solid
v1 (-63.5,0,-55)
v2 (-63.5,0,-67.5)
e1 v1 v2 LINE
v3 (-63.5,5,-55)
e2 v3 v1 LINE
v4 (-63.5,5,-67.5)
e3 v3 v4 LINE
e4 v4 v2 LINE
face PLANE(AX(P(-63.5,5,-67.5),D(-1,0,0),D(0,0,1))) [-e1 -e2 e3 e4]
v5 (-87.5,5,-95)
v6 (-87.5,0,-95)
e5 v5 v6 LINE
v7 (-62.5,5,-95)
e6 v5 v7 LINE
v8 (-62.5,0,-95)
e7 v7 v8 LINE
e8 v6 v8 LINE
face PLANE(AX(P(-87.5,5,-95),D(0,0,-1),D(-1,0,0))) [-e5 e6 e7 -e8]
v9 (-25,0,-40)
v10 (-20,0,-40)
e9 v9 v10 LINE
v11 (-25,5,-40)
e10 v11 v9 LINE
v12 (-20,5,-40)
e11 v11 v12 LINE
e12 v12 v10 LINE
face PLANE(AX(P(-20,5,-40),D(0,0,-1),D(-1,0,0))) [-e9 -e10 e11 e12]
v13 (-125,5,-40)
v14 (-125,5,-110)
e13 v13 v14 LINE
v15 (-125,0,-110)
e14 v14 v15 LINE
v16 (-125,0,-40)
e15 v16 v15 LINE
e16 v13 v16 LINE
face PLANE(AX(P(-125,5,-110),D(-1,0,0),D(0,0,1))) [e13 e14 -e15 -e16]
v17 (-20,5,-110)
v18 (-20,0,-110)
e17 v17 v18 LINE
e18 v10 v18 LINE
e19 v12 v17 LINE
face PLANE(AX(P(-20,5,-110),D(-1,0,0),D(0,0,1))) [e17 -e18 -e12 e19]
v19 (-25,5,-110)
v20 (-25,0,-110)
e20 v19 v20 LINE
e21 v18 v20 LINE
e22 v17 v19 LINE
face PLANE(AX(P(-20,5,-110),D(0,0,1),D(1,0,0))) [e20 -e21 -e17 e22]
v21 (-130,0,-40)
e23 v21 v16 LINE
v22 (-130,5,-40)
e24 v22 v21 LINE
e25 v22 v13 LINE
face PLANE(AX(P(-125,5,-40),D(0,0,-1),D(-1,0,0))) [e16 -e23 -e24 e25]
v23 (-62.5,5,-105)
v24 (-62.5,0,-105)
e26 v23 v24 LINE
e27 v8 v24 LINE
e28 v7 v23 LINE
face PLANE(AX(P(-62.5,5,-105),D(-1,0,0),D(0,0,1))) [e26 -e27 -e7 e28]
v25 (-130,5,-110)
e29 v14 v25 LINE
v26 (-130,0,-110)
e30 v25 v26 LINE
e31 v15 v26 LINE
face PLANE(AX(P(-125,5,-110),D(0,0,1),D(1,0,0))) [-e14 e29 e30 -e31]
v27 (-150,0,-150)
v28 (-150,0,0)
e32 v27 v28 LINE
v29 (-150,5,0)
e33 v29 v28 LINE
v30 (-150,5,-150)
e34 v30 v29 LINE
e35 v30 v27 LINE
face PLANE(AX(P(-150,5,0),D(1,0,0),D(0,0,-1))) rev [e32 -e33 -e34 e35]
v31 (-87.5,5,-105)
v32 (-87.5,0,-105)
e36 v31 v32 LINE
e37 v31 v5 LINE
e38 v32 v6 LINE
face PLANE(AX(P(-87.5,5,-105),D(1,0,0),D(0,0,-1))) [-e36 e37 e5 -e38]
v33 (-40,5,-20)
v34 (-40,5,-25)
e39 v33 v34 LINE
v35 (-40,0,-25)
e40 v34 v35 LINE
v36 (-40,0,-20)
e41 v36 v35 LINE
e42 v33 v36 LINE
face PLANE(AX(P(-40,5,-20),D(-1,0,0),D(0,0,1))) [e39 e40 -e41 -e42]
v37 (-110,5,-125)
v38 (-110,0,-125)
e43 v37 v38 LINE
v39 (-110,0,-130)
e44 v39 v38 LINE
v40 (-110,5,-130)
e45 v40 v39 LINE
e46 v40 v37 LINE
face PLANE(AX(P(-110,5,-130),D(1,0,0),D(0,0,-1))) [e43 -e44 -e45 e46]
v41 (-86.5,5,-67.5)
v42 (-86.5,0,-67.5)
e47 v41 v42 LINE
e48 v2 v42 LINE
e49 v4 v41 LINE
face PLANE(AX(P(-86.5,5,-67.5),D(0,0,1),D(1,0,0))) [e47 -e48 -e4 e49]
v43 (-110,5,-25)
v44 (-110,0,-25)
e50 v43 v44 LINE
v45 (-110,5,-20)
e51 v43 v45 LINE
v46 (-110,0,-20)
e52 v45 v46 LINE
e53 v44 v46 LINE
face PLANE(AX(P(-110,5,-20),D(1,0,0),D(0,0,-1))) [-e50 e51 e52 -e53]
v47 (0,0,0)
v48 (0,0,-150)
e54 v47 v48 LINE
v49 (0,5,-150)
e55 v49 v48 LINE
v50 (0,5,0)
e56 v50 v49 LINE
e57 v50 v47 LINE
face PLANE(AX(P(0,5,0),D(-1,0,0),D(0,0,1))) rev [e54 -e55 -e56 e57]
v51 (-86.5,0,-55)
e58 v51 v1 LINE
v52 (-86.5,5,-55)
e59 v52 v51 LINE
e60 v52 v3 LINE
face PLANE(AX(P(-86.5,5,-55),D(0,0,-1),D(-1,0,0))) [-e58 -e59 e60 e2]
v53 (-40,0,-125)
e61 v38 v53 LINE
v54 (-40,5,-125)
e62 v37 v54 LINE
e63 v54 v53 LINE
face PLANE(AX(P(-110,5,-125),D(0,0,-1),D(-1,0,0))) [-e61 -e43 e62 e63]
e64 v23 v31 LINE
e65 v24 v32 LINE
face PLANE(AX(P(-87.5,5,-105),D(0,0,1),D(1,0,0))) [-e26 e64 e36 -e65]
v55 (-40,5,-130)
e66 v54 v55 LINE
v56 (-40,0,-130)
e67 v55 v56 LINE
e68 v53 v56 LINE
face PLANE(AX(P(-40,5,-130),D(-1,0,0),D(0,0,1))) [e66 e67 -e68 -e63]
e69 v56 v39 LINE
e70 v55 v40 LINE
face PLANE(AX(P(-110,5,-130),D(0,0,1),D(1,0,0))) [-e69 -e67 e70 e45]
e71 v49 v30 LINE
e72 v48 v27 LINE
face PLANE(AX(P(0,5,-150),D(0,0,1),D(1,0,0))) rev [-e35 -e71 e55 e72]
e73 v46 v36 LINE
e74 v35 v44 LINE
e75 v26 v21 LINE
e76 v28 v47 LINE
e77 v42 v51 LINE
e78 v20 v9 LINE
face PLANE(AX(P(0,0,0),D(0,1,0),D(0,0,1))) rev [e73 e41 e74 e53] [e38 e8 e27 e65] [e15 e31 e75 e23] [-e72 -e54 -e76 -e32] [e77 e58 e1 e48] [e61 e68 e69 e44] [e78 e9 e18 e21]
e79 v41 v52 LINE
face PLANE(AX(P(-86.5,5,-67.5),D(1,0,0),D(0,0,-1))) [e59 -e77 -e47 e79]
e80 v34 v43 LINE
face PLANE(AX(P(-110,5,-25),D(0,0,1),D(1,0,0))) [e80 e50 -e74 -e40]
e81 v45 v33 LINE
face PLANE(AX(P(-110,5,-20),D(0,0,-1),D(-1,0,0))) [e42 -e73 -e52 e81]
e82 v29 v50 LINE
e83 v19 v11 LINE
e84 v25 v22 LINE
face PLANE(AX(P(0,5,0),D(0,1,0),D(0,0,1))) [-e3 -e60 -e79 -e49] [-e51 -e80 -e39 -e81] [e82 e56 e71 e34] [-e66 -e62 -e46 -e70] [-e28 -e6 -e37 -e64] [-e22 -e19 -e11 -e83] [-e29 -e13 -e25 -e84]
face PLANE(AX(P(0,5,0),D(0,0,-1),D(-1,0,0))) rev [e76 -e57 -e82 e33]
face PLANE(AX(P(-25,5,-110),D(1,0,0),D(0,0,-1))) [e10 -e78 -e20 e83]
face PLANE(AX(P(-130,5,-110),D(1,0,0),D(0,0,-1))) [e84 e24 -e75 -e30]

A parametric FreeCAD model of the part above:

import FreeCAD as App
import Part
import Sketcher

doc = App.newDocument("Part")
body = doc.addObject("PartDesign::Body", "Body")

sketch1 = body.newObject("Sketcher::SketchObject", "Sketch")
sketch1.AttachmentSupport = (doc.getObject("XZ_Plane"), [""])
sketch1.MapMode = "FlatFace"
sketch1.addGeometry([
    Part.LineSegment(App.Vector(-150, -150, 0), App.Vector(-150, 0, 0)),
    Part.LineSegment(App.Vector(-150, 0, 0), App.Vector(0, 0, 0)),
    Part.LineSegment(App.Vector(0, 0, 0), App.Vector(0, -150, 0)),
    Part.LineSegment(App.Vector(0, -150, 0), App.Vector(-150, -150, 0)),
    Part.LineSegment(App.Vector(-40, -20, 0), App.Vector(-110, -20, 0)),
    Part.LineSegment(App.Vector(-110, -20, 0), App.Vector(-110, -25, 0)),
    Part.LineSegment(App.Vector(-110, -25, 0), App.Vector(-40, -25, 0)),
    Part.LineSegment(App.Vector(-40, -25, 0), App.Vector(-40, -20, 0)),
    Part.LineSegment(App.Vector(-63.5, -55, 0), App.Vector(-86.5, -55, 0)),
    Part.LineSegment(App.Vector(-86.5, -55, 0), App.Vector(-86.5, -67.5, 0)),
    Part.LineSegment(App.Vector(-86.5, -67.5, 0), App.Vector(-63.5, -67.5, 0)),
    Part.LineSegment(App.Vector(-63.5, -67.5, 0), App.Vector(-63.5, -55, 0)),
    Part.LineSegment(App.Vector(-125, -40, 0), App.Vector(-130, -40, 0)),
    Part.LineSegment(App.Vector(-130, -40, 0), App.Vector(-130, -110, 0)),
    Part.LineSegment(App.Vector(-130, -110, 0), App.Vector(-125, -110, 0)),
    Part.LineSegment(App.Vector(-125, -110, 0), App.Vector(-125, -40, 0)),
    Part.LineSegment(App.Vector(-62.5, -95, 0), App.Vector(-87.5, -95, 0)),
    Part.LineSegment(App.Vector(-87.5, -95, 0), App.Vector(-87.5, -105, 0)),
    Part.LineSegment(App.Vector(-87.5, -105, 0), App.Vector(-62.5, -105, 0)),
    Part.LineSegment(App.Vector(-62.5, -105, 0), App.Vector(-62.5, -95, 0)),
    Part.LineSegment(App.Vector(-20, -40, 0), App.Vector(-25, -40, 0)),
    Part.LineSegment(App.Vector(-25, -40, 0), App.Vector(-25, -110, 0)),
    Part.LineSegment(App.Vector(-25, -110, 0), App.Vector(-20, -110, 0)),
    Part.LineSegment(App.Vector(-20, -110, 0), App.Vector(-20, -40, 0)),
    Part.LineSegment(App.Vector(-40, -125, 0), App.Vector(-110, -125, 0)),
    Part.LineSegment(App.Vector(-110, -125, 0), App.Vector(-110, -130, 0)),
    Part.LineSegment(App.Vector(-110, -130, 0), App.Vector(-40, -130, 0)),
    Part.LineSegment(App.Vector(-40, -130, 0), App.Vector(-40, -125, 0)),
], False)
sketch1.addConstraint([
    Sketcher.Constraint("Coincident", 0, 2, 1, 1),
    Sketcher.Constraint("Coincident", 1, 2, 2, 1),
    Sketcher.Constraint("Coincident", 2, 2, 3, 1),
    Sketcher.Constraint("Coincident", 3, 2, 0, 1),
    Sketcher.Constraint("Coincident", 4, 2, 5, 1),
    Sketcher.Constraint("Coincident", 5, 2, 6, 1),
    Sketcher.Constraint("Coincident", 6, 2, 7, 1),
    Sketcher.Constraint("Coincident", 7, 2, 4, 1),
    Sketcher.Constraint("Coincident", 8, 2, 9, 1),
    Sketcher.Constraint("Coincident", 9, 2, 10, 1),
    Sketcher.Constraint("Coincident", 10, 2, 11, 1),
    Sketcher.Constraint("Coincident", 11, 2, 8, 1),
    Sketcher.Constraint("Coincident", 12, 2, 13, 1),
    Sketcher.Constraint("Coincident", 13, 2, 14, 1),
    Sketcher.Constraint("Coincident", 14, 2, 15, 1),
    Sketcher.Constraint("Coincident", 15, 2, 12, 1),
    Sketcher.Constraint("Coincident", 16, 2, 17, 1),
    Sketcher.Constraint("Coincident", 17, 2, 18, 1),
    Sketcher.Constraint("Coincident", 18, 2, 19, 1),
    Sketcher.Constraint("Coincident", 19, 2, 16, 1),
    Sketcher.Constraint("Coincident", 20, 2, 21, 1),
    Sketcher.Constraint("Coincident", 21, 2, 22, 1),
    Sketcher.Constraint("Coincident", 22, 2, 23, 1),
    Sketcher.Constraint("Coincident", 23, 2, 20, 1),
    Sketcher.Constraint("Coincident", 24, 2, 25, 1),
    Sketcher.Constraint("Coincident", 25, 2, 26, 1),
    Sketcher.Constraint("Coincident", 26, 2, 27, 1),
    Sketcher.Constraint("Coincident", 27, 2, 24, 1),
    Sketcher.Constraint("Vertical", 0),
    Sketcher.Constraint("Horizontal", 1),
    Sketcher.Constraint("Vertical", 2),
    Sketcher.Constraint("Horizontal", 3),
    Sketcher.Constraint("Horizontal", 4),
    Sketcher.Constraint("Vertical", 5),
    Sketcher.Constraint("Horizontal", 6),
    Sketcher.Constraint("Vertical", 7),
    Sketcher.Constraint("Horizontal", 8),
    Sketcher.Constraint("Vertical", 9),
    Sketcher.Constraint("Horizontal", 10),
    Sketcher.Constraint("Vertical", 11),
    Sketcher.Constraint("Horizontal", 12),
    Sketcher.Constraint("Vertical", 13),
    Sketcher.Constraint("Horizontal", 14),
    Sketcher.Constraint("Vertical", 15),
    Sketcher.Constraint("Horizontal", 16),
    Sketcher.Constraint("Vertical", 17),
    Sketcher.Constraint("Horizontal", 18),
    Sketcher.Constraint("Vertical", 19),
    Sketcher.Constraint("Horizontal", 20),
    Sketcher.Constraint("Vertical", 21),
    Sketcher.Constraint("Horizontal", 22),
    Sketcher.Constraint("Vertical", 23),
    Sketcher.Constraint("Horizontal", 24),
    Sketcher.Constraint("Vertical", 25),
    Sketcher.Constraint("Horizontal", 26),
    Sketcher.Constraint("Vertical", 27),
    Sketcher.Constraint("Coincident", 1, 2, -1, 1),
    Sketcher.Constraint("Horizontal", 15, 2, 20, 2),
    Sketcher.Constraint("Horizontal", 14, 2, 21, 2),
    Sketcher.Constraint("Vertical", 5, 2, 24, 2),
    Sketcher.Constraint("Vertical", 7, 2, 26, 2),
    Sketcher.Constraint("Equal", 14, 20),
    Sketcher.Constraint("Equal", 3, 0),
    Sketcher.Constraint("Equal", 22, 5),
    Sketcher.Constraint("Equal", 26, 13),
    Sketcher.Constraint("Equal", 7, 25),
    Sketcher.Constraint("DistanceX", 1, 1, 1, 2, 150.0),
    Sketcher.Constraint("DistanceX", 4, 2, 4, 1, 70.0),
    Sketcher.Constraint("DistanceX", 8, 2, 8, 1, 23.0),
    Sketcher.Constraint("DistanceX", 12, 2, 12, 1, 5.0),
    Sketcher.Constraint("DistanceX", 16, 2, 16, 1, 25.0),
    Sketcher.Constraint("DistanceY", 17, 2, 17, 1, 10.0),
    Sketcher.Constraint("DistanceY", 9, 2, 9, 1, 12.5),
    Sketcher.Constraint("DistanceX", 4, 2, -1, 1, 110.0),
    Sketcher.Constraint("DistanceY", 4, 2, -1, 1, 20.0),
    Sketcher.Constraint("DistanceY", 8, 2, -1, 1, 55.0),
    Sketcher.Constraint("DistanceX", 12, 2, -1, 1, 130.0),
    Sketcher.Constraint("DistanceY", 12, 2, -1, 1, 40.0),
    Sketcher.Constraint("DistanceY", 16, 2, -1, 1, 95.0),
    Sketcher.Constraint("DistanceX", 20, 2, -1, 1, 25.0),
    Sketcher.Constraint("DistanceY", 24, 2, -1, 1, 125.0),
    Sketcher.Constraint("DistanceX", 16, 2, 9, 2, 1.0),
    Sketcher.Constraint("DistanceX", 8, 2, -1, 1, 86.5),
])
pad1 = body.newObject("PartDesign::Pad", "Pad")
pad1.Profile = sketch1
pad1.Length = 5
pad1.Reversed = True

doc.recompute()
